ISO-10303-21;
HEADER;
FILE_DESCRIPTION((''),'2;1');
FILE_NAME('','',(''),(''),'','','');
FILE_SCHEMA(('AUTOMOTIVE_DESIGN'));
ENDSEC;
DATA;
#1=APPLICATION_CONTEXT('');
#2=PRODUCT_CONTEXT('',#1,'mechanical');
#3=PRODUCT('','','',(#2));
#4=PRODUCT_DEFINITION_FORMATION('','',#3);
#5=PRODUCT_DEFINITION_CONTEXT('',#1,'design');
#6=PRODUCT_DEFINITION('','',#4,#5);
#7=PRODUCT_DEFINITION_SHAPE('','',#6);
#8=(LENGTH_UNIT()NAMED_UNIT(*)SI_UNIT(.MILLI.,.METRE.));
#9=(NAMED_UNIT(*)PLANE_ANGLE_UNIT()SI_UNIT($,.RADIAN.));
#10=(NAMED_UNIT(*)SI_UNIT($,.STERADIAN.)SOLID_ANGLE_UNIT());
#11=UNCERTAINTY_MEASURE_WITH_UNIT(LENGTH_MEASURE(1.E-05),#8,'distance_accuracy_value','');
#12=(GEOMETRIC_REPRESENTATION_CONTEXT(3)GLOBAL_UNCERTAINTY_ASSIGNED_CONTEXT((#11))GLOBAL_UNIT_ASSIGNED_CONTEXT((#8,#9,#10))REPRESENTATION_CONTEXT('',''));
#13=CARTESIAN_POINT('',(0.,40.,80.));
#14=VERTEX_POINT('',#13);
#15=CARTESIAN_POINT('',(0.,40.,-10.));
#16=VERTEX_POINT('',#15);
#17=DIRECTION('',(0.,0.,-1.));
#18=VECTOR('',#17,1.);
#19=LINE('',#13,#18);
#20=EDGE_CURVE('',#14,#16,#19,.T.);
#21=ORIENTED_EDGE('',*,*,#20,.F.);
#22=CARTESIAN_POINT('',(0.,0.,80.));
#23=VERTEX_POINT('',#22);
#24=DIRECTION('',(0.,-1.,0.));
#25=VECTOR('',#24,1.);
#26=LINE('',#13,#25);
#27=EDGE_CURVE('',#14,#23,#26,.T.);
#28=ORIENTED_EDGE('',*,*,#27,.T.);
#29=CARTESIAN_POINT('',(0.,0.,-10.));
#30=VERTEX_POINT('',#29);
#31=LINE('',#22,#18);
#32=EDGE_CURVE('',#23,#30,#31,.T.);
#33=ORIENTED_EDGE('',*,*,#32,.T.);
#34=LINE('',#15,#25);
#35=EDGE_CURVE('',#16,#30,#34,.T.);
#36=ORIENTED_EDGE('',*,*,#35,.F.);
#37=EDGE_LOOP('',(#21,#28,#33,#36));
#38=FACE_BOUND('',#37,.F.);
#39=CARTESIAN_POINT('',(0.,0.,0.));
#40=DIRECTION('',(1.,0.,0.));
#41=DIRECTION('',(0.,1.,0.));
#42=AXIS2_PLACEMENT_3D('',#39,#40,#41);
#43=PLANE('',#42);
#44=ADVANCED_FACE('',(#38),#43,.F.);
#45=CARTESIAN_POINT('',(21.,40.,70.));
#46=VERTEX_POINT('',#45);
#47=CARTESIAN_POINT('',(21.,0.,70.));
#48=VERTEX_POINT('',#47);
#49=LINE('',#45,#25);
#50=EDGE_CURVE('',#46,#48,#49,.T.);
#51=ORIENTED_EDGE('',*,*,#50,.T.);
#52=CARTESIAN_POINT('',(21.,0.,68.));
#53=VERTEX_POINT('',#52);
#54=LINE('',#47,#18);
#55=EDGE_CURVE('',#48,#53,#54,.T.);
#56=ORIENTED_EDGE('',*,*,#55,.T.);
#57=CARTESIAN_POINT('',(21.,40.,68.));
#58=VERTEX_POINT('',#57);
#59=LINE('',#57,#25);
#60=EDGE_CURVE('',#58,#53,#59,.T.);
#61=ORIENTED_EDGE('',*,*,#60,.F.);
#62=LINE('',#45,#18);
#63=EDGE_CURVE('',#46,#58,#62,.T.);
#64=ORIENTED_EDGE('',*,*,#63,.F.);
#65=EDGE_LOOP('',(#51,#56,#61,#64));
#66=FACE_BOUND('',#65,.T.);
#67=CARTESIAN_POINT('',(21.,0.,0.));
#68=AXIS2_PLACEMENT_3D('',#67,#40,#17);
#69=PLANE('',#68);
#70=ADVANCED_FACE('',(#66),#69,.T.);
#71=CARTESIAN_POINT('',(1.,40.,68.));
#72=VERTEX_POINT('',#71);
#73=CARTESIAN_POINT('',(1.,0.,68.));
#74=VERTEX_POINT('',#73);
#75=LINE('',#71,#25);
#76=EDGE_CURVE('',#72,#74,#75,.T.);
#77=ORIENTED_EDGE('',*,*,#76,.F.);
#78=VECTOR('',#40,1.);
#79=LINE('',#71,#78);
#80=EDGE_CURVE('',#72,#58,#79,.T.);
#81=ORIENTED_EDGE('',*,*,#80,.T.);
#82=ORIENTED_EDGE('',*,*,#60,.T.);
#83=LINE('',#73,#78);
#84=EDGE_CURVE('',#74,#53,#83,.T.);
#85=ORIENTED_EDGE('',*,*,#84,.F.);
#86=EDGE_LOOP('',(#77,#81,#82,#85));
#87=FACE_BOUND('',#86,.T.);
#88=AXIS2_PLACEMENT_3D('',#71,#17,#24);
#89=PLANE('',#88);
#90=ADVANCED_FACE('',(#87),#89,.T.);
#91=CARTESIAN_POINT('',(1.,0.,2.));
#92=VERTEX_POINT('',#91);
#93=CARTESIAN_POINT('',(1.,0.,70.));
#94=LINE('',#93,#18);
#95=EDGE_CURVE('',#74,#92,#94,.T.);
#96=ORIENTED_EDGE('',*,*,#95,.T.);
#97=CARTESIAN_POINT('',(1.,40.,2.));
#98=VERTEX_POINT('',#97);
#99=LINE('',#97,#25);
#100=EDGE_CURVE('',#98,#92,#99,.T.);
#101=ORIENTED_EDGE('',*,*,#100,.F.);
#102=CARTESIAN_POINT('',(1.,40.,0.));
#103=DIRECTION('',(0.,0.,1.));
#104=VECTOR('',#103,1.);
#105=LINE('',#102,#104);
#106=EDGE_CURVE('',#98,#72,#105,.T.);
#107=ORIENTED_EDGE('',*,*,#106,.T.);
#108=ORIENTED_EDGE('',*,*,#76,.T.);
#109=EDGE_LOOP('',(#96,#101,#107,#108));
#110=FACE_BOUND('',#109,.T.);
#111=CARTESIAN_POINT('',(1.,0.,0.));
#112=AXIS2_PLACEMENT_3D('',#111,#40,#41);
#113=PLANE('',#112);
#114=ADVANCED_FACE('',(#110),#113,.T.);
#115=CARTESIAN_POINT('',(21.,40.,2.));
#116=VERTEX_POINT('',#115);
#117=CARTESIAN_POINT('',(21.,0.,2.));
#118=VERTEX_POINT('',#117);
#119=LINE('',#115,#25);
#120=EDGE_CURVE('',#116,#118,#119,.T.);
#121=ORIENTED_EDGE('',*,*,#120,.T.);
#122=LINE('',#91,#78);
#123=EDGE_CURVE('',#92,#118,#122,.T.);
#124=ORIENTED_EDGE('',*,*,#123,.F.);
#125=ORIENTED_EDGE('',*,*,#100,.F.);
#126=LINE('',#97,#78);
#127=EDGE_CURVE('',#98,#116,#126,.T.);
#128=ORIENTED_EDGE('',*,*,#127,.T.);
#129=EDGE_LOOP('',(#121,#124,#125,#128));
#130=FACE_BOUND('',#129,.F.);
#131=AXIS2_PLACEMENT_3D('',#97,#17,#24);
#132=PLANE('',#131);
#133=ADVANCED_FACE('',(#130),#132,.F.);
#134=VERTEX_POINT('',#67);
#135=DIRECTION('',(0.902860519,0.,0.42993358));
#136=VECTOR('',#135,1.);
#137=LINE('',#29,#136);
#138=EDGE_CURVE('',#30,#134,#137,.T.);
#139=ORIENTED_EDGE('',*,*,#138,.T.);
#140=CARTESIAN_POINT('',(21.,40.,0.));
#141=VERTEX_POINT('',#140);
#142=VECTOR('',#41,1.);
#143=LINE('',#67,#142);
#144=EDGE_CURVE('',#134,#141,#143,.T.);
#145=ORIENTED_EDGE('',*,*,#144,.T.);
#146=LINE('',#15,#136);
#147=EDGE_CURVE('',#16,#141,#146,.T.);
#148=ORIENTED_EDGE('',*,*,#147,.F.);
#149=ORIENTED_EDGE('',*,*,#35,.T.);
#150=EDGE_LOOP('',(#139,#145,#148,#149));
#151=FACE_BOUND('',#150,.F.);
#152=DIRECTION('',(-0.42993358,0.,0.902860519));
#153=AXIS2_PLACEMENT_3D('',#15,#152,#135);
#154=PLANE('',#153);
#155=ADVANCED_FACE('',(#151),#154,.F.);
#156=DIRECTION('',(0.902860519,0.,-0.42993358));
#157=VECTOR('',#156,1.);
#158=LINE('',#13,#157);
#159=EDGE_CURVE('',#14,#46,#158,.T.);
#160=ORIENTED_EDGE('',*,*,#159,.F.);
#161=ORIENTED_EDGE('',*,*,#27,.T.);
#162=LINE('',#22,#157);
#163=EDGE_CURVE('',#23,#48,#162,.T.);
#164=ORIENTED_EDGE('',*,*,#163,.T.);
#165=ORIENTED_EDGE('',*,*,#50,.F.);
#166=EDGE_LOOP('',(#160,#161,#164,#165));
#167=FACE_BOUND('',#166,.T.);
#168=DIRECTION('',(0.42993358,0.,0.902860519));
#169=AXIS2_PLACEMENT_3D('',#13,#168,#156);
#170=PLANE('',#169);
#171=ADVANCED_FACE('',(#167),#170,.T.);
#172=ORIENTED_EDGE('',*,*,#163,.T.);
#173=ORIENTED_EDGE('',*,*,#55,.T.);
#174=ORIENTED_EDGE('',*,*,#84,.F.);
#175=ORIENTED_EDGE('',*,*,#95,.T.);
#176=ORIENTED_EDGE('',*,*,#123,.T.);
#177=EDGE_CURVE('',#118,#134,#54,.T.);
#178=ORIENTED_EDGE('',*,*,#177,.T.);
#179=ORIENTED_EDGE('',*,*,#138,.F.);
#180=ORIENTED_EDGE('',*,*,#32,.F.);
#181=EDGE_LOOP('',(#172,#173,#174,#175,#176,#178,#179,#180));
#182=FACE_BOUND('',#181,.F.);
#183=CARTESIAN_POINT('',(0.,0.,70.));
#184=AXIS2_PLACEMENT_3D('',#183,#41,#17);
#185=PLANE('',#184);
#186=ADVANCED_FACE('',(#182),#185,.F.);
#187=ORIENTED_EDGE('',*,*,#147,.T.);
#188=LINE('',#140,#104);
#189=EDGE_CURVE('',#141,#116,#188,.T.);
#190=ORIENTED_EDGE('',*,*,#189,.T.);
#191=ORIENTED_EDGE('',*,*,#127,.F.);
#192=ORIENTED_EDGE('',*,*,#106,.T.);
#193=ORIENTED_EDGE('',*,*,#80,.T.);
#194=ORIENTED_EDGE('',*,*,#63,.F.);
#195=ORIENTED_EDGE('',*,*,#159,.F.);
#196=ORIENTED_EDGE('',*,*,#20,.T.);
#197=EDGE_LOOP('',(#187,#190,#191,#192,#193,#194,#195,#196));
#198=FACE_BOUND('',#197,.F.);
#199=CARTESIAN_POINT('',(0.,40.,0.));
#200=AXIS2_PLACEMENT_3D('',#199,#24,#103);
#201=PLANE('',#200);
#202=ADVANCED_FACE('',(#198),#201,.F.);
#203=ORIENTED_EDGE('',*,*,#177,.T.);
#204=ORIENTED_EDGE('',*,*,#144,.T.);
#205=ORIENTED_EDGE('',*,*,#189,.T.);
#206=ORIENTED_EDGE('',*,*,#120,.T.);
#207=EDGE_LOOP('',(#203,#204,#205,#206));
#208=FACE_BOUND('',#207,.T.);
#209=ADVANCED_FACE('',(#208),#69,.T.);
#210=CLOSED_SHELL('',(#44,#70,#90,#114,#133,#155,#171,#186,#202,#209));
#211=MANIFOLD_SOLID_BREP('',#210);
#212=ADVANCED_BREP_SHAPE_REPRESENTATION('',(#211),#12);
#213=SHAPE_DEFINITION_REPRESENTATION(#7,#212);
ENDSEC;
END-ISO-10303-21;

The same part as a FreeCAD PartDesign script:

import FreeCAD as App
import Part
import Sketcher
Q = App.Units.Quantity

doc = App.newDocument("Part")
params = doc.addObject("Spreadsheet::Sheet", "Params")
for row, (alias, value) in enumerate([
    ("sketch1_width", "40 mm"),
    ("sketch1_height", "70 mm"),
    ("pad1_length", "1 mm"),
    ("sketch2_height", "2 mm"),
    ("sketch2_width", "40 mm"),
    ("pad2_length", "20 mm"),
    ("sketch3_height", "10 mm"),
    ("sketch3_width", "21 mm"),
    ("pad3_length", "40 mm"),
], start=1):
    params.set(f"A{row}", alias)
    params.set(f"B{row}", "=" + value)
    params.setAlias(f"B{row}", alias)

body = doc.addObject("PartDesign::Body", "Body")

sketch1 = doc.addObject("Sketcher::SketchObject", "Sketch")
body.addObject(sketch1)
sketch1.AttachmentSupport = (doc.YZ_Plane, [""])
sketch1.MapMode = "FlatFace"
sketch1.addGeometry([
    Part.LineSegment(App.Vector(0, 70, 0), App.Vector(0, 0, 0)),
    Part.LineSegment(App.Vector(0, 0, 0), App.Vector(40, 0, 0)),
    Part.LineSegment(App.Vector(40, 0, 0), App.Vector(40, 70, 0)),
    Part.LineSegment(App.Vector(40, 70, 0), App.Vector(0, 70, 0)),
], False)
sketch1.addConstraint([
    Sketcher.Constraint("Coincident", 0, 2, 1, 1),
    Sketcher.Constraint("Coincident", 1, 2, 2, 1),
    Sketcher.Constraint("Coincident", 2, 2, 3, 1),
    Sketcher.Constraint("Coincident", 3, 2, 0, 1),
    Sketcher.Constraint("Vertical", 0),
    Sketcher.Constraint("Horizontal", 1),
    Sketcher.Constraint("Vertical", 2),
    Sketcher.Constraint("Horizontal", 3),
    Sketcher.Constraint("Coincident", 0, 2, -1, 1),
    Sketcher.Constraint("DistanceX", 1, 1, 1, 2, Q("40 mm")),
    Sketcher.Constraint("DistanceY", 0, 2, 0, 1, Q("70 mm")),
])
sketch1.setExpression("Constraints[9]", "Params.sketch1_width")
sketch1.setExpression("Constraints[10]", "Params.sketch1_height")
pad1 = doc.addObject("PartDesign::Pad", "Pad")
body.addObject(pad1)
pad1.Profile = sketch1
pad1.setExpression("Length", "Params.pad1_length")

sketch2 = doc.addObject("Sketcher::SketchObject", "Sketch001")
body.addObject(sketch2)
sketch2.AttachmentSupport = (doc.YZ_Plane, [""])
sketch2.MapMode = "FlatFace"
sketch2.AttachmentOffset = App.Placement(App.Vector(0, 0, 1), App.Rotation())
sketch2.addGeometry([
    Part.LineSegment(App.Vector(40, 68, 0), App.Vector(40, 70, 0)),
    Part.LineSegment(App.Vector(40, 70, 0), App.Vector(0, 70, 0)),
    Part.LineSegment(App.Vector(0, 70, 0), App.Vector(0, 68, 0)),
    Part.LineSegment(App.Vector(0, 68, 0), App.Vector(40, 68, 0)),
    Part.LineSegment(App.Vector(40, 2, 0), App.Vector(0, 2, 0)),
    Part.LineSegment(App.Vector(0, 2, 0), App.Vector(0, 0, 0)),
    Part.LineSegment(App.Vector(0, 0, 0), App.Vector(40, 0, 0)),
    Part.LineSegment(App.Vector(40, 0, 0), App.Vector(40, 2, 0)),
], False)
sketch2.addConstraint([
    Sketcher.Constraint("Coincident", 0, 2, 1, 1),
    Sketcher.Constraint("Coincident", 1, 2, 2, 1),
    Sketcher.Constraint("Coincident", 2, 2, 3, 1),
    Sketcher.Constraint("Coincident", 3, 2, 0, 1),
    Sketcher.Constraint("Coincident", 4, 2, 5, 1),
    Sketcher.Constraint("Coincident", 5, 2, 6, 1),
    Sketcher.Constraint("Coincident", 6, 2, 7, 1),
    Sketcher.Constraint("Coincident", 7, 2, 4, 1),
    Sketcher.Constraint("Vertical", 0),
    Sketcher.Constraint("Horizontal", 1),
    Sketcher.Constraint("Vertical", 2),
    Sketcher.Constraint("Horizontal", 3),
    Sketcher.Constraint("Horizontal", 4),
    Sketcher.Constraint("Vertical", 5),
    Sketcher.Constraint("Horizontal", 6),
    Sketcher.Constraint("Vertical", 7),
    Sketcher.Constraint("Coincident", 5, 2, -1, 1),
    Sketcher.Constraint("PointOnObject", 1, 2, -2),
    Sketcher.Constraint("Vertical", 3, 2, 6, 2),
    Sketcher.Constraint("Equal", 2, 5),
    Sketcher.Constraint("DistanceY", 0, 1, 0, 2, Q("2 mm")),
    Sketcher.Constraint("DistanceX", 1, 2, 1, 1, Q("40 mm")),
    Sketcher.Constraint("DistanceY", -1, 1, 0, 2, Q("70 mm")),
])
sketch2.setExpression("Constraints[20]", "Params.sketch2_height")
sketch2.setExpression("Constraints[21]", "Params.sketch2_width")
pad2 = doc.addObject("PartDesign::Pad", "Pad001")
body.addObject(pad2)
pad2.Profile = sketch2
pad2.setExpression("Length", "Params.pad2_length")

sketch3 = doc.addObject("Sketcher::SketchObject", "Sketch002")
body.addObject(sketch3)
sketch3.AttachmentSupport = (doc.XZ_Plane, [""])
sketch3.MapMode = "FlatFace"
sketch3.AttachmentOffset = App.Placement(App.Vector(0, 0, -40), App.Rotation())
sketch3.addGeometry([
    Part.LineSegment(App.Vector(21, 70, 0), App.Vector(0, 70, 0)),
    Part.LineSegment(App.Vector(0, 70, 0), App.Vector(0, 80, 0)),
    Part.LineSegment(App.Vector(0, 80, 0), App.Vector(21, 70, 0)),
    Part.LineSegment(App.Vector(0, -10, 0), App.Vector(0, 0, 0)),
    Part.LineSegment(App.Vector(0, 0, 0), App.Vector(21, 0, 0)),
    Part.LineSegment(App.Vector(21, 0, 0), App.Vector(0, -10, 0)),
], False)
sketch3.addConstraint([
    Sketcher.Constraint("Coincident", 0, 2, 1, 1),
    Sketcher.Constraint("Coincident", 1, 2, 2, 1),
    Sketcher.Constraint("Coincident", 2, 2, 0, 1),
    Sketcher.Constraint("Coincident", 3, 2, 4, 1),
    Sketcher.Constraint("Coincident", 4, 2, 5, 1),
    Sketcher.Constraint("Coincident", 5, 2, 3, 1),
    Sketcher.Constraint("Horizontal", 0),
    Sketcher.Constraint("Vertical", 1),
    Sketcher.Constraint("Vertical", 3),
    Sketcher.Constraint("Horizontal", 4),
    Sketcher.Constraint("Coincident", 3, 2, -1, 1),
    Sketcher.Constraint("PointOnObject", 0, 2, -2),
    Sketcher.Constraint("Vertical", 2, 2, 4, 2),
    Sketcher.Constraint("Equal", 1, 3),
    Sketcher.Constraint("DistanceY", 1, 1, 1, 2, Q("10 mm")),
    Sketcher.Constraint("DistanceX", 0, 2, 0, 1, Q("21 mm")),
    Sketcher.Constraint("DistanceY", -1, 1, 0, 2, Q("70 mm")),
])
sketch3.setExpression("Constraints[14]", "Params.sketch3_height")
sketch3.setExpression("Constraints[15]", "Params.sketch3_width")
pad3 = doc.addObject("PartDesign::Pad", "Pad002")
body.addObject(pad3)
pad3.Profile = sketch3
pad3.setExpression("Length", "Params.pad3_length")

doc.recompute()
